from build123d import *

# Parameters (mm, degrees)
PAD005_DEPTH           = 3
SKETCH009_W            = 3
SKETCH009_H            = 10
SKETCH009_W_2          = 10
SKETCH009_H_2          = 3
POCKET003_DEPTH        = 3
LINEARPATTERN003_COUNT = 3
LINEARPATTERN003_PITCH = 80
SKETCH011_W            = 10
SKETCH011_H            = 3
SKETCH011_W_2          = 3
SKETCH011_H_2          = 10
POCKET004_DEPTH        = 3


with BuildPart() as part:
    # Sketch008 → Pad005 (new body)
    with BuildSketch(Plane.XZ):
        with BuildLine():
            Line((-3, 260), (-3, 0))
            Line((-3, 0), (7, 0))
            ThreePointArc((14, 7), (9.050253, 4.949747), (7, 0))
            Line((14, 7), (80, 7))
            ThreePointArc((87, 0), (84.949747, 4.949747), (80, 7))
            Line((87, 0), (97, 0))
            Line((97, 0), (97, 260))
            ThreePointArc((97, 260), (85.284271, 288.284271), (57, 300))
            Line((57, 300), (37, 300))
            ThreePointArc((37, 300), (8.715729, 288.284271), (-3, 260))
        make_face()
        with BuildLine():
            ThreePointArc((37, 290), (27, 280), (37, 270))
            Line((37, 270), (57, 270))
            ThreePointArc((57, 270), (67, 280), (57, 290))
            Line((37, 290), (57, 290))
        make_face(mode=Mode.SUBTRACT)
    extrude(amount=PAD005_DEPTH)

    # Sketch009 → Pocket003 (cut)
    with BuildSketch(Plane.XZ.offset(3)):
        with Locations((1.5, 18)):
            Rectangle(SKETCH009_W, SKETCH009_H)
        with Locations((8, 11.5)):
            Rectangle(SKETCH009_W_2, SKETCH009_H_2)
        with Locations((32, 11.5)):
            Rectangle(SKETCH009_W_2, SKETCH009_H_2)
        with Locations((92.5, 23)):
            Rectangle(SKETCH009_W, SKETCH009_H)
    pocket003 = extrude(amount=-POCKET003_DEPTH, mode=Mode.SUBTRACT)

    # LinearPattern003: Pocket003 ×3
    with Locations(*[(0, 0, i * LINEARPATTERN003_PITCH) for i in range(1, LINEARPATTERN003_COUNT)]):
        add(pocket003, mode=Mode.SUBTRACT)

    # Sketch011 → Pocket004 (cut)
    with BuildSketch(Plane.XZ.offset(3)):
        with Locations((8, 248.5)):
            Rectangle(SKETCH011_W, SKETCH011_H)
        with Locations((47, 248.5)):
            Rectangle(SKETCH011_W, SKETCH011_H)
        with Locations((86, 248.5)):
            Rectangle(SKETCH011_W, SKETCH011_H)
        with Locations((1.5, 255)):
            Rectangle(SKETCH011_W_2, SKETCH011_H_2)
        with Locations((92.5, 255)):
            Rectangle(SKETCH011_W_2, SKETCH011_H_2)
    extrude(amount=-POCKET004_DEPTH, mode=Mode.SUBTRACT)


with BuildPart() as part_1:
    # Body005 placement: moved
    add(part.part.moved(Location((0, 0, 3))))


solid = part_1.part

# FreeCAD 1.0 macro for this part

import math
import FreeCAD as App
import Part
import Sketcher
Q = App.Units.Quantity

doc = App.newDocument("Part")
body = doc.addObject("PartDesign::Body", "Body")

# Sketch on XZ plane
sketch1 = body.newObject("Sketcher::SketchObject", "Sketch")
sketch1.AttachmentSupport = (doc.getObject("XZ_Plane"), [""])
sketch1.MapMode = "FlatFace"
sketch1.addGeometry([
    Part.LineSegment(App.Vector(-3, 260, 0), App.Vector(-3, 0, 0)),  # 0
    Part.LineSegment(App.Vector(-3, 0, 0), App.Vector(7, 0, 0)),  # 1
    Part.ArcOfCircle(Part.Circle(App.Vector(14, 0, 0), App.Vector(0, 0, 1), 7), math.radians(90), math.radians(180)),  # 2
    Part.LineSegment(App.Vector(14, 7, 0), App.Vector(80, 7, 0)),  # 3
    Part.ArcOfCircle(Part.Circle(App.Vector(80, 0, 0), App.Vector(0, 0, 1), 7), math.radians(0), math.radians(90)),  # 4
    Part.LineSegment(App.Vector(87, 0, 0), App.Vector(97, 0, 0)),  # 5
    Part.LineSegment(App.Vector(97, 0, 0), App.Vector(97, 260, 0)),  # 6
    Part.ArcOfCircle(Part.Circle(App.Vector(57, 260, 0), App.Vector(0, 0, 1), 40), math.radians(0), math.radians(90)),  # 7
    Part.LineSegment(App.Vector(57, 300, 0), App.Vector(37, 300, 0)),  # 8
    Part.ArcOfCircle(Part.Circle(App.Vector(37, 260, 0), App.Vector(0, 0, 1), 40), math.radians(90), math.radians(180)),  # 9
    Part.ArcOfCircle(Part.Circle(App.Vector(37, 280, 0), App.Vector(0, 0, 1), 10), math.radians(90), math.radians(270)),  # 10
    Part.LineSegment(App.Vector(37, 290, 0), App.Vector(57, 290, 0)),  # 11
    Part.ArcOfCircle(Part.Circle(App.Vector(57, 280, 0), App.Vector(0, 0, 1), 10), math.radians(-90), math.radians(90)),  # 12
    Part.LineSegment(App.Vector(57, 270, 0), App.Vector(37, 270, 0)),  # 13
], False)
sketch1.addConstraint([
    Sketcher.Constraint("Coincident", 0, 2, 1, 1),
    Sketcher.Constraint("Coincident", 1, 2, 2, 2),
    Sketcher.Constraint("Tangent", 2, 1, 3, 1),
    Sketcher.Constraint("Tangent", 3, 2, 4, 2),
    Sketcher.Constraint("Coincident", 4, 1, 5, 1),
    Sketcher.Constraint("Coincident", 5, 2, 6, 1),
    Sketcher.Constraint("Tangent", 6, 2, 7, 1),
    Sketcher.Constraint("Tangent", 7, 2, 8, 1),
    Sketcher.Constraint("Tangent", 8, 2, 9, 1),
    Sketcher.Constraint("Tangent", 9, 2, 0, 1),
    Sketcher.Constraint("Tangent", 10, 1, 11, 1),
    Sketcher.Constraint("Tangent", 11, 2, 12, 2),
    Sketcher.Constraint("Tangent", 12, 1, 13, 1),
    Sketcher.Constraint("Tangent", 13, 2, 10, 2),
    Sketcher.Constraint("Vertical", 0),
    Sketcher.Constraint("Horizontal", 1),
    Sketcher.Constraint("Horizontal", 3),
    Sketcher.Constraint("Horizontal", 5),
    Sketcher.Constraint("Vertical", 6),
    Sketcher.Constraint("Horizontal", 8),
    Sketcher.Constraint("Horizontal", 11),
    Sketcher.Constraint("Horizontal", 13),
    Sketcher.Constraint("Equal", 2, 4),
    Sketcher.Constraint("Equal", 7, 9),
    Sketcher.Constraint("PointOnObject", 2, 3, -1),
    Sketcher.Constraint("PointOnObject", 0, 2, -1),
    Sketcher.Constraint("PointOnObject", 4, 1, -1),
    Sketcher.Constraint("Vertical", 9, 3, 10, 3),
    Sketcher.Constraint("Vertical", 7, 3, 12, 3),
    Sketcher.Constraint("Equal", 1, 5),
    Sketcher.Constraint("Radius", 2, Q("7.000002 mm")),
    Sketcher.Constraint("Radius", 7, Q("40.000001 mm")),
    Sketcher.Constraint("Radius", 10, Q("10 mm")),
    Sketcher.Constraint("DistanceX", 1, 1, 1, 2, Q("10 mm")),
    Sketcher.Constraint("DistanceX", 3, 1, 3, 2, Q("66 mm")),
    Sketcher.Constraint("DistanceY", 0, 2, 0, 1, Q("260 mm")),
    Sketcher.Constraint("DistanceX", -1, 1, 2, 3, Q("14.000002 mm")),
    Sketcher.Constraint("DistanceY", -1, 1, 10, 3, Q("280 mm")),
])
pad1 = body.newObject("PartDesign::Pad", "Pad")
pad1.Profile = sketch1
pad1.Length = 3

# Sketch on XZ plane
sketch2 = body.newObject("Sketcher::SketchObject", "Sketch001")
sketch2.AttachmentSupport = (doc.getObject("XZ_Plane"), [""])
sketch2.MapMode = "FlatFace"
sketch2.AttachmentOffset = App.Placement(App.Vector(0, 0, 3), App.Rotation())
sketch2.addGeometry([
    Part.LineSegment(App.Vector(0, 23, 0), App.Vector(0, 13, 0)),  # 0
    Part.LineSegment(App.Vector(0, 13, 0), App.Vector(3, 13, 0)),  # 1
    Part.LineSegment(App.Vector(3, 13, 0), App.Vector(3, 23, 0)),  # 2
    Part.LineSegment(App.Vector(3, 23, 0), App.Vector(0, 23, 0)),  # 3
    Part.LineSegment(App.Vector(3, 13, 0), App.Vector(3, 10, 0)),  # 4
    Part.LineSegment(App.Vector(3, 10, 0), App.Vector(13, 10, 0)),  # 5
    Part.LineSegment(App.Vector(13, 10, 0), App.Vector(13, 13, 0)),  # 6
    Part.LineSegment(App.Vector(13, 13, 0), App.Vector(3, 13, 0)),  # 7
    Part.LineSegment(App.Vector(27, 13, 0), App.Vector(27, 10, 0)),  # 8
    Part.LineSegment(App.Vector(27, 10, 0), App.Vector(37, 10, 0)),  # 9
    Part.LineSegment(App.Vector(37, 10, 0), App.Vector(37, 13, 0)),  # 10
    Part.LineSegment(App.Vector(37, 13, 0), App.Vector(27, 13, 0)),  # 11
    Part.LineSegment(App.Vector(91, 28, 0), App.Vector(91, 18, 0)),  # 12
    Part.LineSegment(App.Vector(91, 18, 0), App.Vector(94, 18, 0)),  # 13
    Part.LineSegment(App.Vector(94, 18, 0), App.Vector(94, 28, 0)),  # 14
    Part.LineSegment(App.Vector(94, 28, 0), App.Vector(91, 28, 0)),  # 15
], False)
sketch2.addConstraint([
    Sketcher.Constraint("Coincident", 0, 2, 1, 1),
    Sketcher.Constraint("Coincident", 1, 2, 2, 1),
    Sketcher.Constraint("Coincident", 2, 2, 3, 1),
    Sketcher.Constraint("Coincident", 3, 2, 0, 1),
    Sketcher.Constraint("Coincident", 4, 2, 5, 1),
    Sketcher.Constraint("Coincident", 5, 2, 6, 1),
    Sketcher.Constraint("Coincident", 6, 2, 7, 1),
    Sketcher.Constraint("Coincident", 7, 2, 4, 1),
    Sketcher.Constraint("Coincident", 8, 2, 9, 1),
    Sketcher.Constraint("Coincident", 9, 2, 10, 1),
    Sketcher.Constraint("Coincident", 10, 2, 11, 1),
    Sketcher.Constraint("Coincident", 11, 2, 8, 1),
    Sketcher.Constraint("Coincident", 12, 2, 13, 1),
    Sketcher.Constraint("Coincident", 13, 2, 14, 1),
    Sketcher.Constraint("Coincident", 14, 2, 15, 1),
    Sketcher.Constraint("Coincident", 15, 2, 12, 1),
    Sketcher.Constraint("Vertical", 0),
    Sketcher.Constraint("Horizontal", 1),
    Sketcher.Constraint("Vertical", 2),
    Sketcher.Constraint("Horizontal", 3),
    Sketcher.Constraint("Vertical", 4),
    Sketcher.Constraint("Horizontal", 5),
    Sketcher.Constraint("Vertical", 6),
    Sketcher.Constraint("Horizontal", 7),
    Sketcher.Constraint("Vertical", 8),
    Sketcher.Constraint("Horizontal", 9),
    Sketcher.Constraint("Vertical", 10),
    Sketcher.Constraint("Horizontal", 11),
    Sketcher.Constraint("Vertical", 12),
    Sketcher.Constraint("Horizontal", 13),
    Sketcher.Constraint("Vertical", 14),
    Sketcher.Constraint("Horizontal", 15),
    Sketcher.Constraint("Coincident", 7, 2, 1, 2),
    Sketcher.Constraint("PointOnObject", 0, 2, -2),
    Sketcher.Constraint("Horizontal", 5, 2, 8, 2),
    Sketcher.Constraint("Horizontal", 7, 2, 10, 2),
    Sketcher.Constraint("Equal", 7, 9),
    Sketcher.Constraint("Equal", 3, 13),
    Sketcher.Constraint("Equal", 11, 0),
    Sketcher.Constraint("Equal", 15, 4),
    Sketcher.Constraint("Equal", 2, 12),
    Sketcher.Constraint("DistanceX", 1, 1, 1, 2, Q("3 mm")),
    Sketcher.Constraint("DistanceX", 5, 1, 5, 2, Q("10 mm")),
    Sketcher.Constraint("DistanceY", -1, 1, 0, 2, Q("13 mm")),
    Sketcher.Constraint("DistanceX", -1, 1, 8, 2, Q("27 mm")),
    Sketcher.Constraint("DistanceX", -1, 1, 12, 2, Q("91 mm")),
    Sketcher.Constraint("DistanceY", -1, 1, 12, 2, Q("18 mm")),
])
pocket1 = body.newObject("PartDesign::Pocket", "Pocket")
pocket1.Profile = sketch2
pocket1.Length = 3
doc.recompute()

linearpattern = body.newObject("PartDesign::LinearPattern", "LinearPattern")
linearpattern.Originals = [pocket1]
linearpattern.Direction = (doc.getObject("Z_Axis"), [""])
linearpattern.Mode = "offset"
linearpattern.Offset = 80
linearpattern.Occurrences = 3
body.Tip = linearpattern

# Sketch on XZ plane
sketch3 = body.newObject("Sketcher::SketchObject", "Sketch002")
sketch3.AttachmentSupport = (doc.getObject("XZ_Plane"), [""])
sketch3.MapMode = "FlatFace"
sketch3.AttachmentOffset = App.Placement(App.Vector(0, 0, 3), App.Rotation())
sketch3.addGeometry([
    Part.LineSegment(App.Vector(3, 250, 0), App.Vector(3, 247, 0)),  # 0
    Part.LineSegment(App.Vector(3, 247, 0), App.Vector(13, 247, 0)),  # 1
    Part.LineSegment(App.Vector(13, 247, 0), App.Vector(13, 250, 0)),  # 2
    Part.LineSegment(App.Vector(13, 250, 0), App.Vector(3, 250, 0)),  # 3
    Part.LineSegment(App.Vector(42, 250, 0), App.Vector(42, 247, 0)),  # 4
    Part.LineSegment(App.Vector(42, 247, 0), App.Vector(52, 247, 0)),  # 5
    Part.LineSegment(App.Vector(52, 247, 0), App.Vector(52, 250, 0)),  # 6
    Part.LineSegment(App.Vector(52, 250, 0), App.Vector(42, 250, 0)),  # 7
    Part.LineSegment(App.Vector(81, 250, 0), App.Vector(81, 247, 0)),  # 8
    Part.LineSegment(App.Vector(81, 247, 0), App.Vector(91, 247, 0)),  # 9
    Part.LineSegment(App.Vector(91, 247, 0), App.Vector(91, 250, 0)),  # 10
    Part.LineSegment(App.Vector(91, 250, 0), App.Vector(81, 250, 0)),  # 11
    Part.LineSegment(App.Vector(0, 260, 0), App.Vector(0, 250, 0)),  # 12
    Part.LineSegment(App.Vector(0, 250, 0), App.Vector(3, 250, 0)),  # 13
    Part.LineSegment(App.Vector(3, 250, 0), App.Vector(3, 260, 0)),  # 14
    Part.LineSegment(App.Vector(3, 260, 0), App.Vector(0, 260, 0)),  # 15
    Part.LineSegment(App.Vector(91, 260, 0), App.Vector(91, 250, 0)),  # 16
    Part.LineSegment(App.Vector(91, 250, 0), App.Vector(94, 250, 0)),  # 17
    Part.LineSegment(App.Vector(94, 250, 0), App.Vector(94, 260, 0)),  # 18
    Part.LineSegment(App.Vector(94, 260, 0), App.Vector(91, 260, 0)),  # 19
], False)
sketch3.addConstraint([
    Sketcher.Constraint("Coincident", 0, 2, 1, 1),
    Sketcher.Constraint("Coincident", 1, 2, 2, 1),
    Sketcher.Constraint("Coincident", 2, 2, 3, 1),
    Sketcher.Constraint("Coincident", 3, 2, 0, 1),
    Sketcher.Constraint("Coincident", 4, 2, 5, 1),
    Sketcher.Constraint("Coincident", 5, 2, 6, 1),
    Sketcher.Constraint("Coincident", 6, 2, 7, 1),
    Sketcher.Constraint("Coincident", 7, 2, 4, 1),
    Sketcher.Constraint("Coincident", 8, 2, 9, 1),
    Sketcher.Constraint("Coincident", 9, 2, 10, 1),
    Sketcher.Constraint("Coincident", 10, 2, 11, 1),
    Sketcher.Constraint("Coincident", 11, 2, 8, 1),
    Sketcher.Constraint("Coincident", 12, 2, 13, 1),
    Sketcher.Constraint("Coincident", 13, 2, 14, 1),
    Sketcher.Constraint("Coincident", 14, 2, 15, 1),
    Sketcher.Constraint("Coincident", 15, 2, 12, 1),
    Sketcher.Constraint("Coincident", 16, 2, 17, 1),
    Sketcher.Constraint("Coincident", 17, 2, 18, 1),
    Sketcher.Constraint("Coincident", 18, 2, 19, 1),
    Sketcher.Constraint("Coincident", 19, 2, 16, 1),
    Sketcher.Constraint("Vertical", 0),
    Sketcher.Constraint("Horizontal", 1),
    Sketcher.Constraint("Vertical", 2),
    Sketcher.Constraint("Horizontal", 3),
    Sketcher.Constraint("Vertical", 4),
    Sketcher.Constraint("Horizontal", 5),
    Sketcher.Constraint("Vertical", 6),
    Sketcher.Constraint("Horizontal", 7),
    Sketcher.Constraint("Vertical", 8),
    Sketcher.Constraint("Horizontal", 9),
    Sketcher.Constraint("Vertical", 10),
    Sketcher.Constraint("Horizontal", 11),
    Sketcher.Constraint("Vertical", 12),
    Sketcher.Constraint("Horizontal", 13),
    Sketcher.Constraint("Vertical", 14),
    Sketcher.Constraint("Horizontal", 15),
    Sketcher.Constraint("Vertical", 16),
    Sketcher.Constraint("Horizontal", 17),
    Sketcher.Constraint("Vertical", 18),
    Sketcher.Constraint("Horizontal", 19),
    Sketcher.Constraint("Coincident", 13, 2, 3, 2),
    Sketcher.Constraint("Coincident", 16, 2, 10, 2),
    Sketcher.Constraint("PointOnObject", 12, 2, -2),
    Sketcher.Constraint("Horizontal", 1, 2, 4, 2),
    Sketcher.Constraint("Horizontal", 3, 2, 6, 2),
    Sketcher.Constraint("Horizontal", 5, 2, 8, 2),
    Sketcher.Constraint("Horizontal", 7, 2, 10, 2),
    Sketcher.Constraint("Horizontal", 15, 2, 18, 2),
    Sketcher.Constraint("Equal", 3, 5),
    Sketcher.Constraint("Equal", 7, 9),
    Sketcher.Constraint("Equal", 15, 17),
    Sketcher.Constraint("Equal", 19, 0),
    Sketcher.Constraint("Equal", 11, 12),
    Sketcher.Constraint("DistanceX", 1, 1, 1, 2, Q("10 mm")),
    Sketcher.Constraint("DistanceX", 13, 1, 13, 2, Q("3 mm")),
    Sketcher.Constraint("DistanceY", -1, 1, 0, 2, Q("247 mm")),
    Sketcher.Constraint("DistanceX", -1, 1, 4, 2, Q("42 mm")),
    Sketcher.Constraint("DistanceX", -1, 1, 8, 2, Q("81 mm")),
])
pocket2 = body.newObject("PartDesign::Pocket", "Pocket001")
pocket2.Profile = sketch3
pocket2.Length = 3
body2 = doc.addObject("PartDesign::Body", "Body001")
doc.recompute()

body.Placement = App.Placement(App.Vector(0, 0, 3), App.Rotation(App.Vector(0, 0, 1), 0))
boolean = body2.newObject("PartDesign::Boolean", "Boolean")
boolean.Type = "Fuse"
boolean.addObjects([body])

doc.recompute()
